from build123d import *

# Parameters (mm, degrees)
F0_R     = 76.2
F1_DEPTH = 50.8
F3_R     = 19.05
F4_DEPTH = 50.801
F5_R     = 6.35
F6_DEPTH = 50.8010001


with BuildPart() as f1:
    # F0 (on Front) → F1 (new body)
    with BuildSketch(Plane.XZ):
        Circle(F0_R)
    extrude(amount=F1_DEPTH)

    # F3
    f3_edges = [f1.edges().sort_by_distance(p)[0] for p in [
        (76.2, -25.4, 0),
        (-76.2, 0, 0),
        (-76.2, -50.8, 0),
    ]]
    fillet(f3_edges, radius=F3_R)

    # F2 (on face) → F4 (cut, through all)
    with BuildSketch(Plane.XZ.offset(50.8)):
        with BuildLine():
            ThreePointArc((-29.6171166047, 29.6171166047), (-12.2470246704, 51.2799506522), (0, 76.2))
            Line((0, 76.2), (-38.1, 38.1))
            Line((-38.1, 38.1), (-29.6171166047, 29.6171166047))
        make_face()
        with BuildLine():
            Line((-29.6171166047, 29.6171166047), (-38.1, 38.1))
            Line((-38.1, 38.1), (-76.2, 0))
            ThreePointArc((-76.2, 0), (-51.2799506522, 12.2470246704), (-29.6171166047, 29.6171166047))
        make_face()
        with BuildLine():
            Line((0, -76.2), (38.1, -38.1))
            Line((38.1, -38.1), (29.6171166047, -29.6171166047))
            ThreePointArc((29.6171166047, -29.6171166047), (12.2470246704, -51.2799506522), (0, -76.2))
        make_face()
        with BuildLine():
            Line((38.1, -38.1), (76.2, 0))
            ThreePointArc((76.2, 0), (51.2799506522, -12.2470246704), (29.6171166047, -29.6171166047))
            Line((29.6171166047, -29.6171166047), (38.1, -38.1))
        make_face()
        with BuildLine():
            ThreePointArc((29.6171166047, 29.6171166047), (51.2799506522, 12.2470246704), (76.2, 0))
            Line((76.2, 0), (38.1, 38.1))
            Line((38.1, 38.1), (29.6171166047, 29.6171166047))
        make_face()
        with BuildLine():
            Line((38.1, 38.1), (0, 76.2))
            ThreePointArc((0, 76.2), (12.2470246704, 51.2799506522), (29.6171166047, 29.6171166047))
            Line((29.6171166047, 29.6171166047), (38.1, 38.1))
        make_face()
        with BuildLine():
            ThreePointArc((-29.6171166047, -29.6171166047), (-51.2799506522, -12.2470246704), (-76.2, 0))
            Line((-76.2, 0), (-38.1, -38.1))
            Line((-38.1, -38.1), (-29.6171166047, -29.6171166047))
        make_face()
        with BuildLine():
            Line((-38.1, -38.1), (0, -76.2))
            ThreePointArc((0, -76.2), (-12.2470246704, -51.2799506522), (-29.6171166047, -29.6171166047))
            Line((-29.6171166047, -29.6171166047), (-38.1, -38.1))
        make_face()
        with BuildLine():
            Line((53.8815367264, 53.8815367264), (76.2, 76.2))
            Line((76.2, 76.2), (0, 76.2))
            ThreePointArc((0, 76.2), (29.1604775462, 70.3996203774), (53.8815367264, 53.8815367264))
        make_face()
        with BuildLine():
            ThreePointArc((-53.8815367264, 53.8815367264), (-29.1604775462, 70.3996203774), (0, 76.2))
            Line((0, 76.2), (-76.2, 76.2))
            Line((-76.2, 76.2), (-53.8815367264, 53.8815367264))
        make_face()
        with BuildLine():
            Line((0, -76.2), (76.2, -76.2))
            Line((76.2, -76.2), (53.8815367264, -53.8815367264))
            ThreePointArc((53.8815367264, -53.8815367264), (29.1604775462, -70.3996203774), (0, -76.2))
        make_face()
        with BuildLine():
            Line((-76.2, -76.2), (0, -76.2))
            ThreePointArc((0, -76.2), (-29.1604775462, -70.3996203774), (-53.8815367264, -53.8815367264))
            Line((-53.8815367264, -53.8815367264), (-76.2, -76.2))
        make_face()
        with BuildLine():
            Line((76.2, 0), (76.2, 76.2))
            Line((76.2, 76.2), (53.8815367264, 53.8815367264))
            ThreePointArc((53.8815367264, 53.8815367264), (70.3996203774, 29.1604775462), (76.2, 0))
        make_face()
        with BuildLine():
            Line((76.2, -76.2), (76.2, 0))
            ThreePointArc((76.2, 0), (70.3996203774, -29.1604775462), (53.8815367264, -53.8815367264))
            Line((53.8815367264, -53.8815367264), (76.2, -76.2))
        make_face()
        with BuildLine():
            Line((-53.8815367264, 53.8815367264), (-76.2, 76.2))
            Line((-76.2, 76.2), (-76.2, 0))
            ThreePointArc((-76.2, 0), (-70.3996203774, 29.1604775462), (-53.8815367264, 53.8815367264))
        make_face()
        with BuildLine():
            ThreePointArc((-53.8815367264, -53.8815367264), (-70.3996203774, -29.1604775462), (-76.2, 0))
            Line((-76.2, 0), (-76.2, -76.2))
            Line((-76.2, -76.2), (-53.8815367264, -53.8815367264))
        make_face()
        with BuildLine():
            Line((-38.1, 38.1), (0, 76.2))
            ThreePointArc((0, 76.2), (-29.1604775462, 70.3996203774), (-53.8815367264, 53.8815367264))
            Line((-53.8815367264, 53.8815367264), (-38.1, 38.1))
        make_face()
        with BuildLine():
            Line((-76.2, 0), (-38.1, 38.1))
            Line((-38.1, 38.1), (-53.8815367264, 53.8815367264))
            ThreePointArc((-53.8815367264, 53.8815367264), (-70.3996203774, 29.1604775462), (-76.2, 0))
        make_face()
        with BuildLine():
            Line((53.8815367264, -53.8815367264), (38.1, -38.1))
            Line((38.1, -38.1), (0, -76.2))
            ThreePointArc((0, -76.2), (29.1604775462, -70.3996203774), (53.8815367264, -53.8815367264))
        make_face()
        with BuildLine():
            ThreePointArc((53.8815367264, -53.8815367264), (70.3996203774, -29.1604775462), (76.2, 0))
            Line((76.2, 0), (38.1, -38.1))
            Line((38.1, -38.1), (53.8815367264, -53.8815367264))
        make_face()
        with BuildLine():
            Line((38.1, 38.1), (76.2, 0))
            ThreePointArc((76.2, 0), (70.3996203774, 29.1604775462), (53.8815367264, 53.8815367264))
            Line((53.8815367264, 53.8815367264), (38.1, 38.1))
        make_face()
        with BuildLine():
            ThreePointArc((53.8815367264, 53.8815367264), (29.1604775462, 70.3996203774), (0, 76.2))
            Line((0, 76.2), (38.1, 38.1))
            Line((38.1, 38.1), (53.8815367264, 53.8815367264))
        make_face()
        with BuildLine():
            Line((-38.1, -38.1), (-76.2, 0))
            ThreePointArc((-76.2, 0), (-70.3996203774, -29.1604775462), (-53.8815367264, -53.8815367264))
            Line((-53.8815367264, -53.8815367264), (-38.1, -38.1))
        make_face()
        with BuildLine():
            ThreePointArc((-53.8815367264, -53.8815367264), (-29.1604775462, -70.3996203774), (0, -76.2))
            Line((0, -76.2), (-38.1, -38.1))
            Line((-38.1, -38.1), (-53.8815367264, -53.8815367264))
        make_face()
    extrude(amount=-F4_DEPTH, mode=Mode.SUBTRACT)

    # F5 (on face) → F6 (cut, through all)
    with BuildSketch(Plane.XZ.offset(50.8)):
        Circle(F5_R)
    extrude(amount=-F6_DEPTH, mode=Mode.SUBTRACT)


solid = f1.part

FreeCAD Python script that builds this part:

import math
import FreeCAD as App
import Part
import Sketcher

V = App.Vector
Q = App.Units.Quantity

doc = App.newDocument("Part")
body = doc.addObject("PartDesign::Body", "Body")

# Sketch on XZ plane
sketch1 = body.newObject("Sketcher::SketchObject", "Sketch")
sketch1.AttachmentSupport = (doc.getObject("XZ_Plane"), [""])
sketch1.MapMode = "FlatFace"
sketch1.addGeometry(Part.Circle(V(0, 0, 0), V(0, 0, 1), 76), False)
sketch1.addConstraint([
    Sketcher.Constraint("Coincident", 0, 3, -1, 1),
    Sketcher.Constraint("Diameter", 0, Q("6 in")),
])
pad1 = body.newObject("PartDesign::Pad", "Pad")
pad1.Profile = sketch1
pad1.Length = Q("2 in")
doc.recompute()

fillet = body.newObject("PartDesign::Fillet", "Fillet")
fillet.Base = (pad1, ["Edge1"])
fillet.UseAllEdges = True
fillet.Radius = Q("0.75 in")

# Sketch on XZ plane
sketch2 = body.newObject("Sketcher::SketchObject", "Sketch001")
sketch2.AttachmentSupport = (doc.getObject("XZ_Plane"), [""])
sketch2.MapMode = "FlatFace"
sketch2.AttachmentOffset = App.Placement(V(0, 0, 2 * 25.4), App.Rotation())
sketch2.addGeometry([
    Part.LineSegment(V(-76, 76, 0), V(-76, 0, 0)),  # 0
    Part.ArcOfCircle(Part.Circle(V(-119, 119, 0), V(0, 0, 1), 127), math.radians(-70), math.radians(-45)),  # 1
    Part.ArcOfCircle(Part.Circle(V(-119, 119, 0), V(0, 0, 1), 127), math.radians(-45), math.radians(-20)),  # 2
    Part.LineSegment(V(0, 76, 0), V(-76, 76, 0)),  # 3
    Part.LineSegment(V(76, -76, 0), V(76, 0, 0)),  # 4
    Part.ArcOfCircle(Part.Circle(V(119, -119, 0), V(0, 0, 1), 127), math.radians(110), math.radians(135)),  # 5
    Part.ArcOfCircle(Part.Circle(V(119, -119, 0), V(0, 0, 1), 127), math.radians(135), math.radians(160)),  # 6
    Part.LineSegment(V(0, -76, 0), V(76, -76, 0)),  # 7
    Part.LineSegment(V(76, 76, 0), V(0, 76, 0)),  # 8
    Part.ArcOfCircle(Part.Circle(V(119, 119, 0), V(0, 0, 1), 127), math.radians(-160), math.radians(-135)),  # 9
    Part.ArcOfCircle(Part.Circle(V(119, 119, 0), V(0, 0, 1), 127), math.radians(-135), math.radians(-110)),  # 10
    Part.LineSegment(V(76, 0, 0), V(76, 76, 0)),  # 11
    Part.LineSegment(V(-76, -76, 0), V(0, -76, 0)),  # 12
    Part.ArcOfCircle(Part.Circle(V(-119, -119, 0), V(0, 0, 1), 127), math.radians(20), math.radians(45)),  # 13
    Part.ArcOfCircle(Part.Circle(V(-119, -119, 0), V(0, 0, 1), 127), math.radians(45), math.radians(70)),  # 14
    Part.LineSegment(V(-76, 0, 0), V(-76, -76, 0)),  # 15
], False)
sketch2.addConstraint([
    Sketcher.Constraint("Coincident", 0, 2, 1, 1),
    Sketcher.Constraint("Tangent", 1, 2, 2, 1),
    Sketcher.Constraint("Coincident", 2, 2, 3, 1),
    Sketcher.Constraint("Coincident", 3, 2, 0, 1),
    Sketcher.Constraint("Coincident", 4, 2, 5, 1),
    Sketcher.Constraint("Tangent", 5, 2, 6, 1),
    Sketcher.Constraint("Coincident", 6, 2, 7, 1),
    Sketcher.Constraint("Coincident", 7, 2, 4, 1),
    Sketcher.Constraint("Coincident", 8, 2, 9, 1),
    Sketcher.Constraint("Tangent", 9, 2, 10, 1),
    Sketcher.Constraint("Coincident", 10, 2, 11, 1),
    Sketcher.Constraint("Coincident", 11, 2, 8, 1),
    Sketcher.Constraint("Coincident", 12, 2, 13, 1),
    Sketcher.Constraint("Tangent", 13, 2, 14, 1),
    Sketcher.Constraint("Coincident", 14, 2, 15, 1),
    Sketcher.Constraint("Coincident", 15, 2, 12, 1),
    Sketcher.Constraint("Vertical", 0),
    Sketcher.Constraint("Horizontal", 3),
    Sketcher.Constraint("Vertical", 4),
    Sketcher.Constraint("Horizontal", 7),
    Sketcher.Constraint("Horizontal", 8),
    Sketcher.Constraint("Vertical", 11),
    Sketcher.Constraint("Horizontal", 12),
    Sketcher.Constraint("Vertical", 15),
    Sketcher.Constraint("Coincident", 8, 2, 2, 2),
    Sketcher.Constraint("Coincident", 10, 2, 4, 2),
    Sketcher.Constraint("Coincident", 12, 2, 6, 2),
    Sketcher.Constraint("Coincident", 14, 2, 0, 2),
    Sketcher.Constraint("Equal", 1, 2),
    Sketcher.Constraint("Equal", 2, 5),
    Sketcher.Constraint("Equal", 5, 6),
    Sketcher.Constraint("Equal", 6, 9),
    Sketcher.Constraint("Equal", 9, 10),
    Sketcher.Constraint("Equal", 10, 13),
    Sketcher.Constraint("Equal", 13, 14),
    Sketcher.Constraint("Symmetric", 1, 3, 5, 3, -1, 1),
    Sketcher.Constraint("Symmetric", 9, 3, 13, 3, -1, 1),
    Sketcher.Constraint("Symmetric", 1, 3, 9, 3, -2),
    Sketcher.Constraint("Horizontal", 1, 2, 9, 2),
    Sketcher.Constraint("Horizontal", 5, 2, 13, 2),
    Sketcher.Constraint("Vertical", 5, 2, 9, 2),
    Sketcher.Constraint("Equal", 12, 0),
    Sketcher.Constraint("Radius", 1, Q("5 in")),
    Sketcher.Constraint("DistanceX", 3, 2, 3, 1, Q("3 in")),
    Sketcher.Constraint("DistanceX", 1, 3, 1, 2, 89.802561),
])
pocket1 = body.newObject("PartDesign::Pocket", "Pocket")
pocket1.Profile = sketch2
pocket1.Type = "ThroughAll"

# Sketch on XZ plane
sketch3 = body.newObject("Sketcher::SketchObject", "Sketch002")
sketch3.AttachmentSupport = (doc.getObject("XZ_Plane"), [""])
sketch3.MapMode = "FlatFace"
sketch3.AttachmentOffset = App.Placement(V(0, 0, 2 * 25.4), App.Rotation())
sketch3.addGeometry(Part.Circle(V(0, 0, 0), V(0, 0, 1), 6), False)
sketch3.addConstraint([
    Sketcher.Constraint("Coincident", 0, 3, -1, 1),
    Sketcher.Constraint("Diameter", 0, Q("0.5 in")),
])
pocket2 = body.newObject("PartDesign::Pocket", "Pocket001")
pocket2.Profile = sketch3
pocket2.Type = "ThroughAll"

doc.recompute()
